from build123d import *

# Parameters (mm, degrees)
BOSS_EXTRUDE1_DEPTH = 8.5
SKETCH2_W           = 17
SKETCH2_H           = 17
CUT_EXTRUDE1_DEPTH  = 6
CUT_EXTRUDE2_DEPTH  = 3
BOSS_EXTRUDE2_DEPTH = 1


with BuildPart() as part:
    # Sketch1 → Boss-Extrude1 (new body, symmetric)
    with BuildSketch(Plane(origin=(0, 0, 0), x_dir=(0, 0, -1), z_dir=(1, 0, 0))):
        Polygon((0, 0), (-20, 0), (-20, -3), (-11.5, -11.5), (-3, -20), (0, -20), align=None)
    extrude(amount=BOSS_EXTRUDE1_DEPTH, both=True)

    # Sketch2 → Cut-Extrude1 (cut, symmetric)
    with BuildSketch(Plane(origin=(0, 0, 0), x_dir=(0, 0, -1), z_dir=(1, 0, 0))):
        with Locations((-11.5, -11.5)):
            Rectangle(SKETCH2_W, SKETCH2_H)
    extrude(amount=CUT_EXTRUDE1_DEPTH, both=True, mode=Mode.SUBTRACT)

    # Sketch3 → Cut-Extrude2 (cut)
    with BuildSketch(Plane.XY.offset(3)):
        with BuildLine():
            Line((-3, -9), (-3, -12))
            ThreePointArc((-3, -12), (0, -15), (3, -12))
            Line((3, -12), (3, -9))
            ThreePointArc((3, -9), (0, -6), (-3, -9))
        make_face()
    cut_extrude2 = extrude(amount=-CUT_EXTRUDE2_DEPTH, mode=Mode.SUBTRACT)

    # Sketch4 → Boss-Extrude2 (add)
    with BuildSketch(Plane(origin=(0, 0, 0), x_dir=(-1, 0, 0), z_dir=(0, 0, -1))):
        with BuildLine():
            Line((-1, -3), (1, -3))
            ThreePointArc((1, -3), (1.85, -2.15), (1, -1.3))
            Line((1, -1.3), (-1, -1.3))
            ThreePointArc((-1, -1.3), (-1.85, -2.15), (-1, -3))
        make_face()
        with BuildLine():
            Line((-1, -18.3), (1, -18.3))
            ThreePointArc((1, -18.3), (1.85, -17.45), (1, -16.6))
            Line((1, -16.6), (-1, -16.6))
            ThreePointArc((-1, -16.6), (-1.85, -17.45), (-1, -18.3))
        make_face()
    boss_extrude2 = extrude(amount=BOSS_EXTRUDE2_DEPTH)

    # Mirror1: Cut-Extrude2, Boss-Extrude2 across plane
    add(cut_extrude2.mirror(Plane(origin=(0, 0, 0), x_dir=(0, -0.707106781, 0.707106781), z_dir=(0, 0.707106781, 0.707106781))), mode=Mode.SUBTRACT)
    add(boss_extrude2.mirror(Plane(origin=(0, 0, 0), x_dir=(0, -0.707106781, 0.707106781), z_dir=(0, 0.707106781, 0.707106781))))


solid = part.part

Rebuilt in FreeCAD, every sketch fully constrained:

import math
import FreeCAD as App
import Part
import Sketcher
Q = App.Units.Quantity


def add_polygon(sketch, points):
    """Adds a closed chain of lines whose ends are joined by coincident constraints."""
    first, n = sketch.GeometryCount, len(points)
    for a, b in zip(points, points[1:] + points[:1]):
        sketch.addGeometry(Part.LineSegment(App.Vector(*a, 0), App.Vector(*b, 0)), False)
    for i in range(n):
        sketch.addConstraint(Sketcher.Constraint("Coincident", first + i, 2, first + (i + 1) % n, 1))

doc = App.newDocument("Part")
params = doc.addObject("Spreadsheet::Sheet", "Params")
for row, (alias, value) in enumerate([
    ("sketch1_width", "3 mm"),
    ("sketch1_width2", "20 mm"),
    ("pad1_length", "17 mm"),
    ("sketch2_width", "17 mm"),
    ("pocket1_length", "12 mm"),
    ("sketch3_radius", "3 mm"),
    ("sketch3_height", "3 mm"),
    ("pocket2_length", "3 mm"),
    ("sketch4_width", "2 mm"),
    ("sketch4_radius", "0.85 mm"),
    ("pad2_length", "1 mm"),
], start=1):
    params.set(f"A{row}", alias)
    params.set(f"B{row}", "=" + value)
    params.setAlias(f"B{row}", alias)

body = doc.addObject("PartDesign::Body", "Body")

sketch1 = doc.addObject("Sketcher::SketchObject", "Sketch")
body.addObject(sketch1)
sketch1.AttachmentSupport = (doc.YZ_Plane, [""])
sketch1.MapMode = "FlatFace"
add_polygon(sketch1, [(0, 0), (0, 20), (-3, 20), (-20, 3), (-20, 0)])
sketch1.addConstraint([
    Sketcher.Constraint("Vertical", 0),
    Sketcher.Constraint("Horizontal", 1),
    Sketcher.Constraint("Vertical", 3),
    Sketcher.Constraint("Horizontal", 4),
    Sketcher.Constraint("Coincident", 4, 2, -1, 1),
    Sketcher.Constraint("Equal", 4, 0),
    Sketcher.Constraint("Equal", 1, 3),
    Sketcher.Constraint("DistanceX", 1, 2, 1, 1, Q("3 mm")),
    Sketcher.Constraint("DistanceX", 4, 1, 4, 2, Q("20 mm")),
])
sketch1.setExpression("Constraints[12]", "Params.sketch1_width")
sketch1.setExpression("Constraints[13]", "Params.sketch1_width2")
pad1 = doc.addObject("PartDesign::Pad", "Pad")
body.addObject(pad1)
pad1.Profile = sketch1
pad1.setExpression("Length", "Params.pad1_length")
pad1.Midplane = True

sketch2 = doc.addObject("Sketcher::SketchObject", "Sketch001")
body.addObject(sketch2)
sketch2.AttachmentSupport = (doc.YZ_Plane, [""])
sketch2.MapMode = "FlatFace"
add_polygon(sketch2, [(-3, 20), (-20, 20), (-20, 3), (-3, 3)])
sketch2.addConstraint([
    Sketcher.Constraint("Horizontal", 0),
    Sketcher.Constraint("Vertical", 1),
    Sketcher.Constraint("Horizontal", 2),
    Sketcher.Constraint("Vertical", 3),
    Sketcher.Constraint("Equal", 2, 1),
    Sketcher.Constraint("DistanceX", 0, 2, 0, 1, Q("17 mm")),
    Sketcher.Constraint("DistanceX", 0, 2, -1, 1, Q("20 mm")),
    Sketcher.Constraint("DistanceY", -1, 1, 0, 2, Q("20 mm")),
])
sketch2.setExpression("Constraints[9]", "Params.sketch2_width")
pocket1 = doc.addObject("PartDesign::Pocket", "Pocket")
body.addObject(pocket1)
pocket1.Profile = sketch2
pocket1.setExpression("Length", "Params.pocket1_length")
pocket1.Midplane = True

sketch3 = doc.addObject("Sketcher::SketchObject", "Sketch002")
body.addObject(sketch3)
sketch3.AttachmentSupport = (doc.XY_Plane, [""])
sketch3.MapMode = "FlatFace"
sketch3.AttachmentOffset = App.Placement(App.Vector(0, 0, 3), App.Rotation())
sketch3.addGeometry([
    Part.LineSegment(App.Vector(-3, -9, 0), App.Vector(-3, -12, 0)),
    Part.ArcOfCircle(Part.Circle(App.Vector(0, -12, 0), App.Vector(0, 0, 1), 3), math.radians(180), math.radians(360)),
    Part.LineSegment(App.Vector(3, -12, 0), App.Vector(3, -9, 0)),
    Part.ArcOfCircle(Part.Circle(App.Vector(0, -9, 0), App.Vector(0, 0, 1), 3), math.radians(0), math.radians(180)),
], False)
sketch3.addConstraint([
    Sketcher.Constraint("Tangent", 0, 2, 1, 1),
    Sketcher.Constraint("Tangent", 1, 2, 2, 1),
    Sketcher.Constraint("Tangent", 2, 2, 3, 1),
    Sketcher.Constraint("Tangent", 3, 2, 0, 1),
    Sketcher.Constraint("Vertical", 0),
    Sketcher.Constraint("Vertical", 2),
    Sketcher.Constraint("PointOnObject", 1, 3, -2),
    Sketcher.Constraint("Radius", 1, Q("3 mm")),
    Sketcher.Constraint("DistanceY", 0, 2, 0, 1, Q("3 mm")),
    Sketcher.Constraint("DistanceY", 1, 3, -1, 1, Q("12 mm")),
])
sketch3.setExpression("Constraints[7]", "Params.sketch3_radius")
sketch3.setExpression("Constraints[8]", "Params.sketch3_height")
pocket2 = doc.addObject("PartDesign::Pocket", "Pocket001")
body.addObject(pocket2)
pocket2.Profile = sketch3
pocket2.setExpression("Length", "Params.pocket2_length")

sketch4 = doc.addObject("Sketcher::SketchObject", "Sketch003")
body.addObject(sketch4)
sketch4.AttachmentSupport = (doc.XY_Plane, [""])
sketch4.MapMode = "FlatFace"
sketch4.addGeometry([
    Part.LineSegment(App.Vector(1, -3, 0), App.Vector(-1, -3, 0)),
    Part.ArcOfCircle(Part.Circle(App.Vector(-1, -2.1, 0), App.Vector(0, 0, 1), 0.8), math.radians(90), math.radians(270)),
    Part.LineSegment(App.Vector(-1, -1.3, 0), App.Vector(1, -1.3, 0)),
    Part.ArcOfCircle(Part.Circle(App.Vector(1, -2.1, 0), App.Vector(0, 0, 1), 0.8), math.radians(-90), math.radians(90)),
    Part.LineSegment(App.Vector(1, -18.3, 0), App.Vector(-1, -18.3, 0)),
    Part.ArcOfCircle(Part.Circle(App.Vector(-1, -17.4, 0), App.Vector(0, 0, 1), 0.8), math.radians(90), math.radians(270)),
    Part.LineSegment(App.Vector(-1, -16.6, 0), App.Vector(1, -16.6, 0)),
    Part.ArcOfCircle(Part.Circle(App.Vector(1, -17.4, 0), App.Vector(0, 0, 1), 0.8), math.radians(-90), math.radians(90)),
], False)
sketch4.addConstraint([
    Sketcher.Constraint("Tangent", 0, 2, 1, 2),
    Sketcher.Constraint("Tangent", 1, 1, 2, 1),
    Sketcher.Constraint("Tangent", 2, 2, 3, 2),
    Sketcher.Constraint("Tangent", 3, 1, 0, 1),
    Sketcher.Constraint("Tangent", 4, 2, 5, 2),
    Sketcher.Constraint("Tangent", 5, 1, 6, 1),
    Sketcher.Constraint("Tangent", 6, 2, 7, 2),
    Sketcher.Constraint("Tangent", 7, 1, 4, 1),
    Sketcher.Constraint("Horizontal", 0),
    Sketcher.Constraint("Horizontal", 2),
    Sketcher.Constraint("Horizontal", 4),
    Sketcher.Constraint("Horizontal", 6),
    Sketcher.Constraint("Equal", 3, 5),
    Sketcher.Constraint("Vertical", 1, 3, 5, 3),
    Sketcher.Constraint("Vertical", 3, 3, 7, 3),
    Sketcher.Constraint("DistanceX", 0, 2, 0, 1, Q("2 mm")),
    Sketcher.Constraint("Radius", 1, Q("0.85 mm")),
    Sketcher.Constraint("DistanceX", 1, 3, -1, 1, Q("1 mm")),
    Sketcher.Constraint("DistanceY", 0, 2, -1, 1, Q("3 mm")),
    Sketcher.Constraint("DistanceY", 4, 2, -1, 1, Q("18.3 mm")),
])
sketch4.setExpression("Constraints[15]", "Params.sketch4_width")
sketch4.setExpression("Constraints[16]", "Params.sketch4_radius")
pad2 = doc.addObject("PartDesign::Pad", "Pad001")
body.addObject(pad2)
pad2.Profile = sketch4
pad2.setExpression("Length", "Params.pad2_length")
pad2.Reversed = True
doc.recompute()

datumplane = doc.addObject("PartDesign::Plane", "DatumPlane")
body.addObject(datumplane)
datumplane.Placement = App.Placement(App.Vector(0, 0, 0), App.Rotation(App.Vector(0, 0.707106781, -0.707106781), App.Vector(-1, 0, 0), App.Vector(0, 0.707106781, 0.707106781), "ZXY"))
mirrored = doc.addObject("PartDesign::Mirrored", "Mirrored")
body.addObject(mirrored)
mirrored.Originals = [pocket2, pad2]
mirrored.MirrorPlane = (datumplane, [""])
body.Tip = mirrored

doc.recompute()
